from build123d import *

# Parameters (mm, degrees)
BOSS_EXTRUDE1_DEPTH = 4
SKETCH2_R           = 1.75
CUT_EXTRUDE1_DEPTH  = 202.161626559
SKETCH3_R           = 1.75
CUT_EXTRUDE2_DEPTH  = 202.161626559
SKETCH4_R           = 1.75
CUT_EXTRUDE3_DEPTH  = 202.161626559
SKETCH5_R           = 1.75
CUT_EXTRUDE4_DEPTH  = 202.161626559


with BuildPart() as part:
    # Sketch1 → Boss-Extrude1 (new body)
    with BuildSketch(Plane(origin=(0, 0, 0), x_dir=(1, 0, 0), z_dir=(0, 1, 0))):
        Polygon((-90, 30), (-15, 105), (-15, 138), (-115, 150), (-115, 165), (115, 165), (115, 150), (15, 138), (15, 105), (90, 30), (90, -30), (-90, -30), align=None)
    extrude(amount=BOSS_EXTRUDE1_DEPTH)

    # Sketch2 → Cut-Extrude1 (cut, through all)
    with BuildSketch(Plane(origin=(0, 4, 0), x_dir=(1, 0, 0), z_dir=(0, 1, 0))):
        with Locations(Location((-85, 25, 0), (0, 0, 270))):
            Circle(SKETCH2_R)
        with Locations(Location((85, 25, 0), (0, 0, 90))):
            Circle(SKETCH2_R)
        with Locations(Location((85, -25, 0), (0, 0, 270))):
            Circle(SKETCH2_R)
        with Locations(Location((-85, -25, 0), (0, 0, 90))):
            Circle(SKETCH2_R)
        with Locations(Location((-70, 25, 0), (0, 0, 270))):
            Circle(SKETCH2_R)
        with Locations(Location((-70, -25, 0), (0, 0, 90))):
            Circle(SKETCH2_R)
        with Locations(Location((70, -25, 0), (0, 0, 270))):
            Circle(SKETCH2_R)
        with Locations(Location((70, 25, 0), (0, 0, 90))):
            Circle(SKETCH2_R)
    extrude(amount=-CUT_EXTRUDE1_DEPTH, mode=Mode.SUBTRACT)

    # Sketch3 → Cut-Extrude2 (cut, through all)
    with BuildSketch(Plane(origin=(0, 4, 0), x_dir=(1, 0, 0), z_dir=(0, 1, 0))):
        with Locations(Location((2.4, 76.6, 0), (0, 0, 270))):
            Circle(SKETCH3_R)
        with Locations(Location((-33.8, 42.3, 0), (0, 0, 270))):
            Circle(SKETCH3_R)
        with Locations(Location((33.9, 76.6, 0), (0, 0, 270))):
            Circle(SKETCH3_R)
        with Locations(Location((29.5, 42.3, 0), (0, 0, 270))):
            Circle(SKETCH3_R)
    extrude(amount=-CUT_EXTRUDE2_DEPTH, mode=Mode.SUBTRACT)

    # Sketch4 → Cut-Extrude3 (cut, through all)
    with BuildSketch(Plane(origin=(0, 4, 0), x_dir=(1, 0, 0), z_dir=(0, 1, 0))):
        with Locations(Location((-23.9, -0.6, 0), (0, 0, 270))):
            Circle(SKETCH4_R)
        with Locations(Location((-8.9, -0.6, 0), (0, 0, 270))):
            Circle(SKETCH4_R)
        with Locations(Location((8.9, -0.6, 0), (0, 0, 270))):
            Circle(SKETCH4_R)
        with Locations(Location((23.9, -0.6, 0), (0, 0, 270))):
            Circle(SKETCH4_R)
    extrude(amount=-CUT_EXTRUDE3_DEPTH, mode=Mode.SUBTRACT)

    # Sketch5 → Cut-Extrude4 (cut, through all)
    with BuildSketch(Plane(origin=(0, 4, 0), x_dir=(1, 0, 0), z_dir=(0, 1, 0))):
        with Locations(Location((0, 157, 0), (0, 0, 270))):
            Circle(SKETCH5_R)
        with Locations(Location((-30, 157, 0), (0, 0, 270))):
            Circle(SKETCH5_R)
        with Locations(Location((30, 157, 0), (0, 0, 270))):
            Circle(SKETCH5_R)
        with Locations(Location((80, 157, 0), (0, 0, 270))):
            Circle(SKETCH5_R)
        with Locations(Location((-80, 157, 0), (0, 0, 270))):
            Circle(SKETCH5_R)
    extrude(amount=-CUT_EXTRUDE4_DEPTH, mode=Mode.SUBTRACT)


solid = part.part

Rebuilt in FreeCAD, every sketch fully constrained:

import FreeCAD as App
import Part
import Sketcher


def add_polygon(sketch, points):
    """Adds a closed chain of lines whose ends are joined by coincident constraints."""
    first, n = sketch.GeometryCount, len(points)
    for a, b in zip(points, points[1:] + points[:1]):
        sketch.addGeometry(Part.LineSegment(App.Vector(*a, 0), App.Vector(*b, 0)), False)
    for i in range(n):
        sketch.addConstraint(Sketcher.Constraint("Coincident", first + i, 2, first + (i + 1) % n, 1))

doc = App.newDocument("Part")
body = doc.addObject("PartDesign::Body", "Body")

sketch1 = doc.addObject("Sketcher::SketchObject", "Sketch")
body.addObject(sketch1)
sketch1.AttachmentSupport = (doc.XZ_Plane, [""])
sketch1.MapMode = "FlatFace"
add_polygon(sketch1, [(-15, -105), (-90, -30), (-90, 30), (90, 30), (90, -30), (15, -105), (15, -138), (115, -150), (115, -165), (-115, -165), (-115, -150), (-15, -138)])
sketch1.addConstraint(Sketcher.Constraint("Vertical", 1))
sketch1.addConstraint(Sketcher.Constraint("Horizontal", 2))
sketch1.addConstraint(Sketcher.Constraint("Vertical", 3))
sketch1.addConstraint(Sketcher.Constraint("Vertical", 5))
sketch1.addConstraint(Sketcher.Constraint("Vertical", 7))
sketch1.addConstraint(Sketcher.Constraint("Horizontal", 8))
sketch1.addConstraint(Sketcher.Constraint("Vertical", 9))
sketch1.addConstraint(Sketcher.Constraint("Vertical", 11))
sketch1.addConstraint(Sketcher.Constraint("Symmetric", 0, 2, 2, 2, -1, 1))
sketch1.addConstraint(Sketcher.Constraint("Symmetric", 6, 2, 9, 2, -2))
sketch1.addConstraint(Sketcher.Constraint("Symmetric", 5, 2, 10, 2, -2))
sketch1.addConstraint(Sketcher.Constraint("Perpendicular", 0, 4))
sketch1.addConstraint(Sketcher.Constraint("Horizontal", 0, 2, 3, 2))
sketch1.addConstraint(Sketcher.Constraint("Horizontal", 4, 2, 11, 2))
sketch1.addConstraint(Sketcher.Constraint("DistanceX", 2, 1, 2, 2, 180.0))
sketch1.addConstraint(Sketcher.Constraint("DistanceX", 8, 2, 8, 1, 230.0))
sketch1.addConstraint(Sketcher.Constraint("DistanceY", 1, 1, 1, 2, 60.0))
sketch1.addConstraint(Sketcher.Constraint("DistanceY", 5, 2, 5, 1, 33.0))
sketch1.addConstraint(Sketcher.Constraint("DistanceY", 7, 2, 7, 1, 15.0))
sketch1.addConstraint(Sketcher.Constraint("DistanceX", -1, 1, 4, 2, 15.0))
sketch1.addConstraint(Sketcher.Constraint("DistanceY", 6, 2, -1, 1, 150.0))
pad1 = doc.addObject("PartDesign::Pad", "Pad")
body.addObject(pad1)
pad1.Profile = sketch1
pad1.Length = 4
pad1.Reversed = True

sketch2 = doc.addObject("Sketcher::SketchObject", "Sketch001")
body.addObject(sketch2)
sketch2.AttachmentSupport = (doc.XZ_Plane, [""])
sketch2.MapMode = "FlatFace"
sketch2.AttachmentOffset = App.Placement(App.Vector(0, 0, -4), App.Rotation())
sketch2.addGeometry(Part.Circle(App.Vector(-85, -25, 0), App.Vector(0, 0, 1), 1.8), False)
sketch2.addGeometry(Part.Circle(App.Vector(85, -25, 0), App.Vector(0, 0, 1), 1.8), False)
sketch2.addGeometry(Part.Circle(App.Vector(85, 25, 0), App.Vector(0, 0, 1), 1.8), False)
sketch2.addGeometry(Part.Circle(App.Vector(-85, 25, 0), App.Vector(0, 0, 1), 1.8), False)
sketch2.addGeometry(Part.Circle(App.Vector(-70, -25, 0), App.Vector(0, 0, 1), 1.8), False)
sketch2.addGeometry(Part.Circle(App.Vector(-70, 25, 0), App.Vector(0, 0, 1), 1.8), False)
sketch2.addGeometry(Part.Circle(App.Vector(70, 25, 0), App.Vector(0, 0, 1), 1.8), False)
sketch2.addGeometry(Part.Circle(App.Vector(70, -25, 0), App.Vector(0, 0, 1), 1.8), False)
sketch2.addConstraint(Sketcher.Constraint("Equal", 0, 1))
sketch2.addConstraint(Sketcher.Constraint("Equal", 1, 2))
sketch2.addConstraint(Sketcher.Constraint("Equal", 2, 3))
sketch2.addConstraint(Sketcher.Constraint("Equal", 3, 4))
sketch2.addConstraint(Sketcher.Constraint("Equal", 4, 5))
sketch2.addConstraint(Sketcher.Constraint("Equal", 5, 6))
sketch2.addConstraint(Sketcher.Constraint("Equal", 6, 7))
sketch2.addConstraint(Sketcher.Constraint("Symmetric", 0, 3, 2, 3, -1, 1))
sketch2.addConstraint(Sketcher.Constraint("Symmetric", 1, 3, 3, 3, -1, 1))
sketch2.addConstraint(Sketcher.Constraint("Symmetric", 4, 3, 6, 3, -1, 1))
sketch2.addConstraint(Sketcher.Constraint("Symmetric", 5, 3, 7, 3, -1, 1))
sketch2.addConstraint(Sketcher.Constraint("Symmetric", 0, 3, 1, 3, -2))
sketch2.addConstraint(Sketcher.Constraint("Symmetric", 5, 3, 6, 3, -2))
sketch2.addConstraint(Sketcher.Constraint("Horizontal", 1, 3, 4, 3))
sketch2.addConstraint(Sketcher.Constraint("Diameter", 0, 3.5))
sketch2.addConstraint(Sketcher.Constraint("DistanceX", 0, 3, -1, 1, 85.0))
sketch2.addConstraint(Sketcher.Constraint("DistanceY", 0, 3, -1, 1, 25.0))
sketch2.addConstraint(Sketcher.Constraint("DistanceX", 4, 3, -1, 1, 70.0))
pocket1 = doc.addObject("PartDesign::Pocket", "Pocket")
body.addObject(pocket1)
pocket1.Profile = sketch2
pocket1.Type = "ThroughAll"
pocket1.Reversed = True

sketch3 = doc.addObject("Sketcher::SketchObject", "Sketch002")
body.addObject(sketch3)
sketch3.AttachmentSupport = (doc.XZ_Plane, [""])
sketch3.MapMode = "FlatFace"
sketch3.AttachmentOffset = App.Placement(App.Vector(0, 0, -4), App.Rotation())
sketch3.addGeometry(Part.Circle(App.Vector(2.4, -76.6, 0), App.Vector(0, 0, 1), 1.8), False)
sketch3.addGeometry(Part.Circle(App.Vector(-33.8, -42.3, 0), App.Vector(0, 0, 1), 1.8), False)
sketch3.addGeometry(Part.Circle(App.Vector(33.9, -76.6, 0), App.Vector(0, 0, 1), 1.8), False)
sketch3.addGeometry(Part.Circle(App.Vector(29.5, -42.3, 0), App.Vector(0, 0, 1), 1.8), False)
sketch3.addConstraint(Sketcher.Constraint("Equal", 0, 1))
sketch3.addConstraint(Sketcher.Constraint("Equal", 1, 2))
sketch3.addConstraint(Sketcher.Constraint("Equal", 2, 3))
sketch3.addConstraint(Sketcher.Constraint("Horizontal", 0, 3, 2, 3))
sketch3.addConstraint(Sketcher.Constraint("Horizontal", 1, 3, 3, 3))
sketch3.addConstraint(Sketcher.Constraint("Diameter", 0, 3.5))
sketch3.addConstraint(Sketcher.Constraint("DistanceX", -1, 1, 0, 3, 2.4))
sketch3.addConstraint(Sketcher.Constraint("DistanceY", 0, 3, -1, 1, 76.6))
sketch3.addConstraint(Sketcher.Constraint("DistanceX", 1, 3, -1, 1, 33.8))
sketch3.addConstraint(Sketcher.Constraint("DistanceY", 1, 3, -1, 1, 42.3))
sketch3.addConstraint(Sketcher.Constraint("DistanceX", -1, 1, 2, 3, 33.9))
sketch3.addConstraint(Sketcher.Constraint("DistanceX", -1, 1, 3, 3, 29.5))
pocket2 = doc.addObject("PartDesign::Pocket", "Pocket001")
body.addObject(pocket2)
pocket2.Profile = sketch3
pocket2.Type = "ThroughAll"
pocket2.Reversed = True

sketch4 = doc.addObject("Sketcher::SketchObject", "Sketch003")
body.addObject(sketch4)
sketch4.AttachmentSupport = (doc.XZ_Plane, [""])
sketch4.MapMode = "FlatFace"
sketch4.AttachmentOffset = App.Placement(App.Vector(0, 0, -4), App.Rotation())
sketch4.addGeometry(Part.Circle(App.Vector(-23.9, 0.6, 0), App.Vector(0, 0, 1), 1.8), False)
sketch4.addGeometry(Part.Circle(App.Vector(-8.9, 0.6, 0), App.Vector(0, 0, 1), 1.8), False)
sketch4.addGeometry(Part.Circle(App.Vector(8.9, 0.6, 0), App.Vector(0, 0, 1), 1.8), False)
sketch4.addGeometry(Part.Circle(App.Vector(23.9, 0.6, 0), App.Vector(0, 0, 1), 1.8), False)
sketch4.addConstraint(Sketcher.Constraint("Equal", 0, 1))
sketch4.addConstraint(Sketcher.Constraint("Equal", 1, 2))
sketch4.addConstraint(Sketcher.Constraint("Equal", 2, 3))
sketch4.addConstraint(Sketcher.Constraint("Symmetric", 1, 3, 2, 3, -2))
sketch4.addConstraint(Sketcher.Constraint("Symmetric", 0, 3, 3, 3, -2))
sketch4.addConstraint(Sketcher.Constraint("Horizontal", 0, 3, 1, 3))
sketch4.addConstraint(Sketcher.Constraint("Diameter", 0, 3.5))
sketch4.addConstraint(Sketcher.Constraint("DistanceX", 0, 3, 1, 3, 15.0))
sketch4.addConstraint(Sketcher.Constraint("DistanceX", 0, 3, -1, 1, 23.9))
sketch4.addConstraint(Sketcher.Constraint("DistanceY", -1, 1, 0, 3, 0.6))
pocket3 = doc.addObject("PartDesign::Pocket", "Pocket002")
body.addObject(pocket3)
pocket3.Profile = sketch4
pocket3.Type = "ThroughAll"
pocket3.Reversed = True

sketch5 = doc.addObject("Sketcher::SketchObject", "Sketch004")
body.addObject(sketch5)
sketch5.AttachmentSupport = (doc.XZ_Plane, [""])
sketch5.MapMode = "FlatFace"
sketch5.AttachmentOffset = App.Placement(App.Vector(0, 0, -4), App.Rotation())
sketch5.addGeometry(Part.Circle(App.Vector(0, -157, 0), App.Vector(0, 0, 1), 1.8), False)
sketch5.addGeometry(Part.Circle(App.Vector(-30, -157, 0), App.Vector(0, 0, 1), 1.8), False)
sketch5.addGeometry(Part.Circle(App.Vector(30, -157, 0), App.Vector(0, 0, 1), 1.8), False)
sketch5.addGeometry(Part.Circle(App.Vector(80, -157, 0), App.Vector(0, 0, 1), 1.8), False)
sketch5.addGeometry(Part.Circle(App.Vector(-80, -157, 0), App.Vector(0, 0, 1), 1.8), False)
sketch5.addConstraint(Sketcher.Constraint("Equal", 0, 1))
sketch5.addConstraint(Sketcher.Constraint("Equal", 1, 2))
sketch5.addConstraint(Sketcher.Constraint("Equal", 2, 3))
sketch5.addConstraint(Sketcher.Constraint("Equal", 3, 4))
sketch5.addConstraint(Sketcher.Constraint("Symmetric", 1, 3, 2, 3, -2))
sketch5.addConstraint(Sketcher.Constraint("Symmetric", 3, 3, 4, 3, -2))
sketch5.addConstraint(Sketcher.Constraint("PointOnObject", 0, 3, -2))
sketch5.addConstraint(Sketcher.Constraint("Horizontal", 0, 3, 1, 3))
sketch5.addConstraint(Sketcher.Constraint("Horizontal", 2, 3, 3, 3))
sketch5.addConstraint(Sketcher.Constraint("Diameter", 0, 3.5))
sketch5.addConstraint(Sketcher.Constraint("DistanceY", 0, 3, -1, 1, 157.0))
sketch5.addConstraint(Sketcher.Constraint("DistanceX", 1, 3, -1, 1, 30.0))
sketch5.addConstraint(Sketcher.Constraint("DistanceX", -1, 1, 3, 3, 80.0))
pocket4 = doc.addObject("PartDesign::Pocket", "Pocket003")
body.addObject(pocket4)
pocket4.Profile = sketch5
pocket4.Type = "ThroughAll"
pocket4.Reversed = True

doc.recompute()
